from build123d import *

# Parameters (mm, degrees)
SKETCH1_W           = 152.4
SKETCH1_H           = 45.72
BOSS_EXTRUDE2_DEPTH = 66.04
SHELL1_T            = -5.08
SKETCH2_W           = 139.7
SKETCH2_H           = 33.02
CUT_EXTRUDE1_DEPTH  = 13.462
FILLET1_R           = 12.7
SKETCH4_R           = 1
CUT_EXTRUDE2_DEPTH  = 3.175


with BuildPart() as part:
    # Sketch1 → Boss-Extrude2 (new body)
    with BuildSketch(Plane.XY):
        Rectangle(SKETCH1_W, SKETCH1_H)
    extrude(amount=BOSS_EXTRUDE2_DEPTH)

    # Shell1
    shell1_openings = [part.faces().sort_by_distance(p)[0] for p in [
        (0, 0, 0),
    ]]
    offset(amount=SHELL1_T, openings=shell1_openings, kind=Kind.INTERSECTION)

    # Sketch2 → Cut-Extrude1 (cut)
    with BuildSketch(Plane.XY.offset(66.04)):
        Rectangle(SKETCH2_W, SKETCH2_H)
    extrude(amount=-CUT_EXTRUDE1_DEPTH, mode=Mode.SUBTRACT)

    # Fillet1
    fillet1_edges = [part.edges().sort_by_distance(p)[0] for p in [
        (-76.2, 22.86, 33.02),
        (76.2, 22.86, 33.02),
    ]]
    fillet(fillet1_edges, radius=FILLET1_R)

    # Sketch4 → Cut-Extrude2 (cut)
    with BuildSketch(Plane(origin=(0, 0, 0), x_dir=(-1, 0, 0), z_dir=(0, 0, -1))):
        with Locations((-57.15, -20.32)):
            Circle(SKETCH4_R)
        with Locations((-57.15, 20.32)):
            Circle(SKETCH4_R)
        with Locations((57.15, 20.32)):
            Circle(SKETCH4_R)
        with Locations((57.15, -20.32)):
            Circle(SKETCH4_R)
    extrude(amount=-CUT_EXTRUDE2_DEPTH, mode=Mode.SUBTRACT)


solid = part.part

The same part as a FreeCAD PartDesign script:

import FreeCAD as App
import Part
import Sketcher
Q = App.Units.Quantity


def edges_at(feature, points):
    """Names of the edges that pass closest to the given points."""
    edges = feature.Shape.Edges
    near = lambda p: min(range(len(edges)), key=lambda i: edges[i].distToShape(Part.Vertex(*p))[0])
    return sorted({f"Edge{near(p) + 1}" for p in points})


def faces_at(feature, points):
    """Names of the faces that lie closest to the given points."""
    faces = feature.Shape.Faces
    near = lambda p: min(range(len(faces)), key=lambda i: faces[i].distToShape(Part.Vertex(*p))[0])
    return sorted({f"Face{near(p) + 1}" for p in points})


def add_polygon(sketch, points):
    """Adds a closed chain of lines whose ends are joined by coincident constraints."""
    first, n = sketch.GeometryCount, len(points)
    for a, b in zip(points, points[1:] + points[:1]):
        sketch.addGeometry(Part.LineSegment(App.Vector(*a, 0), App.Vector(*b, 0)), False)
    for i in range(n):
        sketch.addConstraint(Sketcher.Constraint("Coincident", first + i, 2, first + (i + 1) % n, 1))

doc = App.newDocument("Part")
body = doc.addObject("PartDesign::Body", "Body")

# Sketch on XY plane
sketch1 = body.newObject("Sketcher::SketchObject", "Sketch")
sketch1.AttachmentSupport = (doc.getObject("XY_Plane"), [""])
sketch1.MapMode = "FlatFace"
add_polygon(sketch1, [(-76, 23), (-76, -23), (76, -23), (76, 23)])  # lines 0-3
sketch1.addConstraint([
    Sketcher.Constraint("Vertical", 0),
    Sketcher.Constraint("Horizontal", 1),
    Sketcher.Constraint("Vertical", 2),
    Sketcher.Constraint("Horizontal", 3),
    Sketcher.Constraint("Symmetric", 0, 2, 2, 2, -1, 1),
    Sketcher.Constraint("DistanceX", 1, 1, 1, 2, Q("6 in")),
    Sketcher.Constraint("DistanceY", 0, 2, 0, 1, Q("1.8 in")),
])
pad1 = body.newObject("PartDesign::Pad", "Pad")
pad1.Profile = sketch1
pad1.Length = Q("2.6 in")
doc.recompute()

thickness = body.newObject("PartDesign::Thickness", "Thickness")
thickness.Base = (pad1, faces_at(pad1, [(0, 0, 0)]))
thickness.Value = Q("0.2 in")
thickness.Reversed = True
thickness.Join = "Intersection"

# Sketch on XY plane
sketch2 = body.newObject("Sketcher::SketchObject", "Sketch001")
sketch2.AttachmentSupport = (doc.getObject("XY_Plane"), [""])
sketch2.MapMode = "FlatFace"
sketch2.AttachmentOffset = App.Placement(App.Vector(0, 0, 2.6 * 25.4), App.Rotation())
add_polygon(sketch2, [(-70, 17), (-70, -17), (70, -17), (70, 17)])  # lines 0-3
sketch2.addConstraint([
    Sketcher.Constraint("Vertical", 0),
    Sketcher.Constraint("Horizontal", 1),
    Sketcher.Constraint("Vertical", 2),
    Sketcher.Constraint("Horizontal", 3),
    Sketcher.Constraint("Symmetric", 0, 2, 2, 2, -1, 1),
    Sketcher.Constraint("DistanceX", 1, 1, 1, 2, Q("5.5 in")),
    Sketcher.Constraint("DistanceY", 0, 2, 0, 1, Q("1.3 in")),
])
pocket1 = body.newObject("PartDesign::Pocket", "Pocket")
pocket1.Profile = sketch2
pocket1.Length = Q("0.53 in")
doc.recompute()

fillet = body.newObject("PartDesign::Fillet", "Fillet")
fillet.Base = (pocket1, edges_at(pocket1, [(-76.2, 22.86, 33.02), (76.2, 22.86, 33.02)]))
fillet.Radius = Q("0.5 in")

# Sketch on XY plane
sketch3 = body.newObject("Sketcher::SketchObject", "Sketch002")
sketch3.AttachmentSupport = (doc.getObject("XY_Plane"), [""])
sketch3.MapMode = "FlatFace"
sketch3.addGeometry([
    Part.Circle(App.Vector(57.1, -20.3, 0), App.Vector(0, 0, 1), 1),
    Part.Circle(App.Vector(57.1, 20.3, 0), App.Vector(0, 0, 1), 1),
    Part.Circle(App.Vector(-57.1, 20.3, 0), App.Vector(0, 0, 1), 1),
    Part.Circle(App.Vector(-57.1, -20.3, 0), App.Vector(0, 0, 1), 1),
], False)
sketch3.addConstraint([
    Sketcher.Constraint("Equal", 0, 1),
    Sketcher.Constraint("Equal", 1, 2),
    Sketcher.Constraint("Equal", 2, 3),
    Sketcher.Constraint("Symmetric", 0, 3, 2, 3, -1, 1),
    Sketcher.Constraint("Symmetric", 1, 3, 3, 3, -1, 1),
    Sketcher.Constraint("Symmetric", 1, 3, 2, 3, -2),
    Sketcher.Constraint("DistanceY", 0, 3, -1, 1, Q("0.8 in")),
    Sketcher.Constraint("DistanceX", 2, 3, 1, 3, Q("4.5 in")),
    Sketcher.Constraint("Diameter", 0, 2.0),
])
pocket2 = body.newObject("PartDesign::Pocket", "Pocket001")
pocket2.Profile = sketch3
pocket2.Length = Q("0.125 in")
pocket2.Reversed = True

doc.recompute()
